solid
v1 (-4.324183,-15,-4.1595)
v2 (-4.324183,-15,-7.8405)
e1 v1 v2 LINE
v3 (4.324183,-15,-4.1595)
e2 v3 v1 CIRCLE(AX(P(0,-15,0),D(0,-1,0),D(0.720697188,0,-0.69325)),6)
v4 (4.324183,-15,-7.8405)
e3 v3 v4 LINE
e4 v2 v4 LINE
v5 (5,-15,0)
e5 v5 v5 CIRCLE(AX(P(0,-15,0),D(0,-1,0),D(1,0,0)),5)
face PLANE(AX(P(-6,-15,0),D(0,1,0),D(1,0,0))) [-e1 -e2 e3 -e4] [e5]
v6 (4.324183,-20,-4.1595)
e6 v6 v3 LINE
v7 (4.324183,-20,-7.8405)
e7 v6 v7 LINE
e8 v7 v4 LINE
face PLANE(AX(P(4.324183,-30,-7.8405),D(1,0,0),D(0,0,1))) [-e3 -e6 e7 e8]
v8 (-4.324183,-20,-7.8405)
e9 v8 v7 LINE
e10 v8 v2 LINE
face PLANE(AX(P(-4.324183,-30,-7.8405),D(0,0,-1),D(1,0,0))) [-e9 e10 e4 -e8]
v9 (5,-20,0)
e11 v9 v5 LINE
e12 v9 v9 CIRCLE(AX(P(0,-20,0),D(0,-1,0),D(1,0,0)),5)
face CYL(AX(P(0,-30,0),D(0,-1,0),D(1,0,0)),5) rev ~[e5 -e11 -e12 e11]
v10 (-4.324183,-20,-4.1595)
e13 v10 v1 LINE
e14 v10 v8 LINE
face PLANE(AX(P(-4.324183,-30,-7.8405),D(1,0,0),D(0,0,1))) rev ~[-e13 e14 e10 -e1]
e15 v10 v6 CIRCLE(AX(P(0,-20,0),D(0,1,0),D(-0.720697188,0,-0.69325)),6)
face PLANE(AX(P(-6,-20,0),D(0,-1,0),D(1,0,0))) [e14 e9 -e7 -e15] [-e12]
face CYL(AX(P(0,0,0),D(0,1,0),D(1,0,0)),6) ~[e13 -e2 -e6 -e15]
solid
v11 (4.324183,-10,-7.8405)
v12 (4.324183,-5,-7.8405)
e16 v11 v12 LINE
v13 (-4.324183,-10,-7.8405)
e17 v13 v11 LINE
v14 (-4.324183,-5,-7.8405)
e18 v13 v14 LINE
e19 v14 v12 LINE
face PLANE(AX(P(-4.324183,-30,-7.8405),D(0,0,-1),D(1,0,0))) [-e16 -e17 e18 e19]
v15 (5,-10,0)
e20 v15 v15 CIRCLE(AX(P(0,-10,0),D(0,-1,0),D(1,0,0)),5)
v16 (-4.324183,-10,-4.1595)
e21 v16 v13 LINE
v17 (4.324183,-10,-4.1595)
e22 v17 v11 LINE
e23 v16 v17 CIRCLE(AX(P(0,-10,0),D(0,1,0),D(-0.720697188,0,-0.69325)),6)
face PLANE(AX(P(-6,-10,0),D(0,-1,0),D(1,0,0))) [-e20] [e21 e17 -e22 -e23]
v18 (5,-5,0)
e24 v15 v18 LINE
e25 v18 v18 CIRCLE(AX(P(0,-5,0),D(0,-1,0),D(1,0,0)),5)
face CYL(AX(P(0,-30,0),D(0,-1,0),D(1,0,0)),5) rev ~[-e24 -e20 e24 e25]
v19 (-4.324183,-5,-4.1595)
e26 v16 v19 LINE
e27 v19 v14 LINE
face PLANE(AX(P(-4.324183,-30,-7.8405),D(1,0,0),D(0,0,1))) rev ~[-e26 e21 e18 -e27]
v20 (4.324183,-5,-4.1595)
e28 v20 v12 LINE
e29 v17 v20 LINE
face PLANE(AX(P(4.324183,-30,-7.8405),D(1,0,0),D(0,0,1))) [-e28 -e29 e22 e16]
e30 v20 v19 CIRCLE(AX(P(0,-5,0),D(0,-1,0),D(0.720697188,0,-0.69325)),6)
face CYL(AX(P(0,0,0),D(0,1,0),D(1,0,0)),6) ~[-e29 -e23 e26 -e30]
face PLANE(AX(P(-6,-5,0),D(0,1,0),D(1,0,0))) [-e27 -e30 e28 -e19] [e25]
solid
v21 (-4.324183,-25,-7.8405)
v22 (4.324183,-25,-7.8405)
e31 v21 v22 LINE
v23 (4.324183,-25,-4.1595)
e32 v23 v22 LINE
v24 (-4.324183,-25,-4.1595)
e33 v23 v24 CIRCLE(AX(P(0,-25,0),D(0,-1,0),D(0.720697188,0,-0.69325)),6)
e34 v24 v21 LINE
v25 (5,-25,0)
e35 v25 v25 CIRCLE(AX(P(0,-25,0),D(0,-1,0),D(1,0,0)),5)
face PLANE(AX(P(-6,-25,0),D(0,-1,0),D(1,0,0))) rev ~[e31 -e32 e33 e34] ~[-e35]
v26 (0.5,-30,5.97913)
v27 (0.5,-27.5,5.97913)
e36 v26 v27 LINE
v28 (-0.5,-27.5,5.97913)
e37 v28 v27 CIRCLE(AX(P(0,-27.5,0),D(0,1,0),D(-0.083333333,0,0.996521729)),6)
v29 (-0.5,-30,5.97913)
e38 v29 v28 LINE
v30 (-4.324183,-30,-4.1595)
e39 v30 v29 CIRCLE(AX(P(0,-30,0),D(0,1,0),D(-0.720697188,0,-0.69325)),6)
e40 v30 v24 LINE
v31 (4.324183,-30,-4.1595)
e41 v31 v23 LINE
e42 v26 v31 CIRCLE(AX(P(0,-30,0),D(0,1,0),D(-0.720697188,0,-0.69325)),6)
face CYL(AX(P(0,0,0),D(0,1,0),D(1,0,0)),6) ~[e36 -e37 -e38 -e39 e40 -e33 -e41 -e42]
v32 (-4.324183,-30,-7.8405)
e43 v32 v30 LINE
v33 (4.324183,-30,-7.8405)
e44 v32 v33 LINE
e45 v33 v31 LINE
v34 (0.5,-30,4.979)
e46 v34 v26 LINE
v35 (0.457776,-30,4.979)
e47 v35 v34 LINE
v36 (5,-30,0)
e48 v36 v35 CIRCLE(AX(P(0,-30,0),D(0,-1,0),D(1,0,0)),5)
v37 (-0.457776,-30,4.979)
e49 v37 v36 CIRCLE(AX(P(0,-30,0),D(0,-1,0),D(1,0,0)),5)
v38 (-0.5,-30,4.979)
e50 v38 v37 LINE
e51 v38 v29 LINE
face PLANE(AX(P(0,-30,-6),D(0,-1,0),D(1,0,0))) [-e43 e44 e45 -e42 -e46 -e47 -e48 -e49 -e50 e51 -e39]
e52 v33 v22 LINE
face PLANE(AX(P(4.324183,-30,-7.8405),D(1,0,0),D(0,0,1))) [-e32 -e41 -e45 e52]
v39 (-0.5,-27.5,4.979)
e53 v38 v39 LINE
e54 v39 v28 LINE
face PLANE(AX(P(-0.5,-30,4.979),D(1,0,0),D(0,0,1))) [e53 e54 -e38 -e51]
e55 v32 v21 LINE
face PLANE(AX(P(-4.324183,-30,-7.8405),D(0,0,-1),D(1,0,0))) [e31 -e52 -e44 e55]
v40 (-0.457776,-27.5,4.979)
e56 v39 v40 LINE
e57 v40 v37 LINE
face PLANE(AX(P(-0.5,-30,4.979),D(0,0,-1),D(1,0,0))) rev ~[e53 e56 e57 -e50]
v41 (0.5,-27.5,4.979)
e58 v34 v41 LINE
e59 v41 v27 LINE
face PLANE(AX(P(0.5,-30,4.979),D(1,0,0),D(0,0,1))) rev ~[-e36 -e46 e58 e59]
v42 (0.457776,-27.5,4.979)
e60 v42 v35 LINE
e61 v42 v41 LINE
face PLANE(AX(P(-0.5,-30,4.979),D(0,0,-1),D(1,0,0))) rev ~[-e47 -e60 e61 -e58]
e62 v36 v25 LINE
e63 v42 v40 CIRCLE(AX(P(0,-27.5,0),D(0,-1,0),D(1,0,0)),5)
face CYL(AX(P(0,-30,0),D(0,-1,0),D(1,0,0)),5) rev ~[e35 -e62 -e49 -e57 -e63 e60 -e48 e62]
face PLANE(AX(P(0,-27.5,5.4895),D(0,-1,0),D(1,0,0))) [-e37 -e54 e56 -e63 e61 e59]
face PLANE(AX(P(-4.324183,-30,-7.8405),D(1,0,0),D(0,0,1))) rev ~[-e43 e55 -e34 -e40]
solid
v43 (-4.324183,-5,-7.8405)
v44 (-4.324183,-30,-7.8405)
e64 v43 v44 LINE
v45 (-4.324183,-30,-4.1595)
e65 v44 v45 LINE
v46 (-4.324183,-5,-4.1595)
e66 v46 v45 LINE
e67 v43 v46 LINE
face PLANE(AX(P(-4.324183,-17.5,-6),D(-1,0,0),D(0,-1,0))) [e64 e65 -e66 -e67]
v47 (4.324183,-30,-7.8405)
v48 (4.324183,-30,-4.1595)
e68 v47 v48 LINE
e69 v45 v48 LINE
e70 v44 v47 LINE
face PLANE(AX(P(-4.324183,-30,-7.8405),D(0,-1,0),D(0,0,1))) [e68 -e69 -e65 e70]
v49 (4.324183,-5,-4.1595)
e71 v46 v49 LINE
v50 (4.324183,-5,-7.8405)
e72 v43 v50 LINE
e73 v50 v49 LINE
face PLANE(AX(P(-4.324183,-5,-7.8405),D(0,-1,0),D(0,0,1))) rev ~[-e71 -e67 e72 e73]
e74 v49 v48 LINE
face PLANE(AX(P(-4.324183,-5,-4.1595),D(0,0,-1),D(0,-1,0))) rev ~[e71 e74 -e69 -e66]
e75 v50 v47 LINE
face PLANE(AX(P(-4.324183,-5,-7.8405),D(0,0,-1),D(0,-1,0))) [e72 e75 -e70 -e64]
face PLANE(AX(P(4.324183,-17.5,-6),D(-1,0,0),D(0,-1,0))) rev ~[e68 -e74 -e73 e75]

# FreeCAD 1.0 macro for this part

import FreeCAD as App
import Part
import Sketcher
from FreeCAD import Vector


def add_polygon(sketch, points):
    """Adds a closed chain of lines whose ends are joined by coincident constraints."""
    first, n = sketch.GeometryCount, len(points)
    for a, b in zip(points, points[1:] + points[:1]):
        sketch.addGeometry(Part.LineSegment(App.Vector(*a, 0), App.Vector(*b, 0)), False)
    for i in range(n):
        sketch.addConstraint(Sketcher.Constraint("Coincident", first + i, 2, first + (i + 1) % n, 1))

doc = App.newDocument("Part")
body = doc.addObject("PartDesign::Body", "Body")
body.AllowCompound = True

# Sketch on XZ plane
sketch1 = body.newObject("Sketcher::SketchObject", "Sketch")
sketch1.AttachmentSupport = (doc.getObject("XZ_Plane"), [""])
sketch1.MapMode = "FlatFace"
sketch1.addGeometry(Part.Circle(Vector(0, 0, 0), Vector(0, 0, 1), 6), False)
sketch1.addConstraint([
    Sketcher.Constraint("Coincident", 0, 3, -1, 1),
    Sketcher.Constraint("Diameter", 0, 12.0),
])
pad1 = body.newObject("PartDesign::Pad", "Pad")
pad1.Profile = sketch1
pad1.Length = 30

# Sketch on XZ plane
sketch2 = body.newObject("Sketcher::SketchObject", "Sketch001")
sketch2.AttachmentSupport = (doc.getObject("XZ_Plane"), [""])
sketch2.MapMode = "FlatFace"
sketch2.AttachmentOffset = App.Placement(Vector(0, 0, 30), App.Rotation())
add_polygon(sketch2, [(-4.324183, -4.1595), (-4.324183, -7.8405), (4.324183, -7.8405), (4.324183, -4.1595)])  # lines 0-3
sketch2.addConstraint([
    Sketcher.Constraint("Vertical", 0),
    Sketcher.Constraint("Horizontal", 1),
    Sketcher.Constraint("Vertical", 2),
    Sketcher.Constraint("Horizontal", 3),
    Sketcher.Constraint("DistanceY", 0, 2, 0, 1, 3.681),
    Sketcher.Constraint("DistanceY", 0, 2, -1, 1, 7.8405),
    Sketcher.Constraint("DistanceX", 1, 1, 1, 2, 8.648366),
    Sketcher.Constraint("DistanceX", 0, 2, -1, 1, 4.324183),
])
pad2 = body.newObject("PartDesign::Pad", "Pad001")
pad2.Profile = sketch2
pad2.Type = "UpToLast"
pad2.Reversed = True

# Sketch on XY plane
sketch3 = body.newObject("Sketcher::SketchObject", "Sketch002")
sketch3.AttachmentSupport = (doc.getObject("XY_Plane"), [""])
sketch3.MapMode = "FlatFace"
add_polygon(sketch3, [(-6, -20), (-6, -25), (6, -25), (6, -20)])  # lines 0-3
add_polygon(sketch3, [(-6, 0), (-6, -5), (6, -5), (6, 0)])  # lines 4-7
add_polygon(sketch3, [(-6, -10), (-6, -15), (6, -15), (6, -10)])  # lines 8-11
sketch3.addConstraint([
    Sketcher.Constraint("Vertical", 0),
    Sketcher.Constraint("Horizontal", 1),
    Sketcher.Constraint("Vertical", 2),
    Sketcher.Constraint("Horizontal", 3),
    Sketcher.Constraint("Vertical", 4),
    Sketcher.Constraint("Horizontal", 5),
    Sketcher.Constraint("Vertical", 6),
    Sketcher.Constraint("Horizontal", 7),
    Sketcher.Constraint("Vertical", 8),
    Sketcher.Constraint("Horizontal", 9),
    Sketcher.Constraint("Vertical", 10),
    Sketcher.Constraint("Horizontal", 11),
    Sketcher.Constraint("Symmetric", 6, 2, 7, 2, -1, 1),
    Sketcher.Constraint("Vertical", 3, 2, 4, 2),
    Sketcher.Constraint("Vertical", 2, 2, 5, 2),
    Sketcher.Constraint("Vertical", 7, 2, 8, 2),
    Sketcher.Constraint("Vertical", 6, 2, 9, 2),
    Sketcher.Constraint("Equal", 2, 4),
    Sketcher.Constraint("Equal", 6, 8),
    Sketcher.Constraint("DistanceX", 1, 1, 1, 2, 12.0),
    Sketcher.Constraint("DistanceY", 0, 2, 0, 1, 5.0),
    Sketcher.Constraint("DistanceY", 0, 2, -1, 1, 25.0),
    Sketcher.Constraint("DistanceY", 8, 2, -1, 1, 15.0),
])
pocket1 = body.newObject("PartDesign::Pocket", "Pocket")
pocket1.Profile = sketch3
pocket1.Type = "ThroughAll"
pocket1.Midplane = True

# Sketch on XZ plane
sketch4 = body.newObject("Sketcher::SketchObject", "Sketch003")
sketch4.AttachmentSupport = (doc.getObject("XZ_Plane"), [""])
sketch4.MapMode = "FlatFace"
sketch4.AttachmentOffset = App.Placement(Vector(0, 0, 30), App.Rotation())
sketch4.addGeometry(Part.Circle(Vector(0, 0, 0), Vector(0, 0, 1), 5), False)
sketch4.addConstraint([
    Sketcher.Constraint("Coincident", 0, 3, -1, 1),
    Sketcher.Constraint("Diameter", 0, 10.0),
])
pocket2 = body.newObject("PartDesign::Pocket", "Pocket001")
pocket2.Profile = sketch4
pocket2.Type = "ThroughAll"

# Sketch on XZ plane
sketch5 = body.newObject("Sketcher::SketchObject", "Sketch004")
sketch5.AttachmentSupport = (doc.getObject("XZ_Plane"), [""])
sketch5.MapMode = "FlatFace"
sketch5.AttachmentOffset = App.Placement(Vector(0, 0, 30), App.Rotation())
add_polygon(sketch5, [(-0.5, 6), (-0.5, 4.979), (0.5, 4.979), (0.5, 6)])  # lines 0-3
sketch5.addConstraint([
    Sketcher.Constraint("Vertical", 0),
    Sketcher.Constraint("Horizontal", 1),
    Sketcher.Constraint("Vertical", 2),
    Sketcher.Constraint("Horizontal", 3),
    Sketcher.Constraint("DistanceX", 1, 1, 1, 2, 1.0),
    Sketcher.Constraint("DistanceY", -1, 1, 2, 2, 6.0),
    Sketcher.Constraint("DistanceX", 0, 2, -1, 1, 0.5),
    Sketcher.Constraint("DistanceY", 0, 2, 0, 1, 1.021),
])
pocket3 = body.newObject("PartDesign::Pocket", "Pocket002")
pocket3.Profile = sketch5
pocket3.Length = 2.5
body2 = doc.addObject("PartDesign::Body", "Body001")

# Sketch on YZ plane
sketch6 = body2.newObject("Sketcher::SketchObject", "Sketch005")
sketch6.AttachmentSupport = (doc.getObject("YZ_Plane001"), [""])
sketch6.MapMode = "FlatFace"
sketch6.AttachmentOffset = App.Placement(Vector(0, 0, -4.324183), App.Rotation())
add_polygon(sketch6, [(-5, -4.1595), (-5, -7.8405), (-30, -7.8405), (-30, -4.1595)])  # lines 0-3
sketch6.addConstraint([
    Sketcher.Constraint("Vertical", 0),
    Sketcher.Constraint("Horizontal", 1),
    Sketcher.Constraint("Vertical", 2),
    Sketcher.Constraint("Horizontal", 3),
    Sketcher.Constraint("DistanceX", 1, 2, 1, 1, 25.0),
    Sketcher.Constraint("DistanceX", 0, 2, -1, 1, 5.0),
    Sketcher.Constraint("DistanceY", 0, 2, 0, 1, 3.681),
    Sketcher.Constraint("DistanceY", 0, 2, -1, 1, 7.8405),
])
pad3 = body2.newObject("PartDesign::Pad", "Pad002")
pad3.Profile = sketch6
pad3.Length = 8.648366

doc.recompute()
